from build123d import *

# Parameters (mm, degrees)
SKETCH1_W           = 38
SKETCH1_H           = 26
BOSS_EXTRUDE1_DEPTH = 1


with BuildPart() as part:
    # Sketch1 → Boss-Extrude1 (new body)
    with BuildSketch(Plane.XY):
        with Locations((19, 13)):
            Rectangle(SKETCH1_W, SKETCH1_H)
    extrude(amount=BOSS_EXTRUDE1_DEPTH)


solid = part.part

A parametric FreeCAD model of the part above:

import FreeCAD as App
import Part
import Sketcher
Q = App.Units.Quantity


def add_polygon(sketch, points):
    """Adds a closed chain of lines whose ends are joined by coincident constraints."""
    first, n = sketch.GeometryCount, len(points)
    for a, b in zip(points, points[1:] + points[:1]):
        sketch.addGeometry(Part.LineSegment(App.Vector(*a, 0), App.Vector(*b, 0)), False)
    for i in range(n):
        sketch.addConstraint(Sketcher.Constraint("Coincident", first + i, 2, first + (i + 1) % n, 1))

doc = App.newDocument("Part")
body = doc.addObject("PartDesign::Body", "Body")

# Sketch on XY plane
sketch1 = body.newObject("Sketcher::SketchObject", "Sketch")
sketch1.AttachmentSupport = (doc.getObject("XY_Plane"), [""])
sketch1.MapMode = "FlatFace"
add_polygon(sketch1, [(0, 26), (0, 0), (38, 0), (38, 26)])  # lines 0-3
sketch1.addConstraint(Sketcher.Constraint("Vertical", 0))
sketch1.addConstraint(Sketcher.Constraint("Horizontal", 1))
sketch1.addConstraint(Sketcher.Constraint("Vertical", 2))
sketch1.addConstraint(Sketcher.Constraint("Horizontal", 3))
sketch1.addConstraint(Sketcher.Constraint("Coincident", 0, 2, -1, 1))
sketch1.addConstraint(Sketcher.Constraint("DistanceX", 1, 1, 1, 2, Q("38 mm")))
sketch1.addConstraint(Sketcher.Constraint("DistanceY", 0, 2, 0, 1, Q("26 mm")))
pad1 = body.newObject("PartDesign::Pad", "Pad")
pad1.Profile = sketch1
pad1.Length = 1

doc.recompute()
